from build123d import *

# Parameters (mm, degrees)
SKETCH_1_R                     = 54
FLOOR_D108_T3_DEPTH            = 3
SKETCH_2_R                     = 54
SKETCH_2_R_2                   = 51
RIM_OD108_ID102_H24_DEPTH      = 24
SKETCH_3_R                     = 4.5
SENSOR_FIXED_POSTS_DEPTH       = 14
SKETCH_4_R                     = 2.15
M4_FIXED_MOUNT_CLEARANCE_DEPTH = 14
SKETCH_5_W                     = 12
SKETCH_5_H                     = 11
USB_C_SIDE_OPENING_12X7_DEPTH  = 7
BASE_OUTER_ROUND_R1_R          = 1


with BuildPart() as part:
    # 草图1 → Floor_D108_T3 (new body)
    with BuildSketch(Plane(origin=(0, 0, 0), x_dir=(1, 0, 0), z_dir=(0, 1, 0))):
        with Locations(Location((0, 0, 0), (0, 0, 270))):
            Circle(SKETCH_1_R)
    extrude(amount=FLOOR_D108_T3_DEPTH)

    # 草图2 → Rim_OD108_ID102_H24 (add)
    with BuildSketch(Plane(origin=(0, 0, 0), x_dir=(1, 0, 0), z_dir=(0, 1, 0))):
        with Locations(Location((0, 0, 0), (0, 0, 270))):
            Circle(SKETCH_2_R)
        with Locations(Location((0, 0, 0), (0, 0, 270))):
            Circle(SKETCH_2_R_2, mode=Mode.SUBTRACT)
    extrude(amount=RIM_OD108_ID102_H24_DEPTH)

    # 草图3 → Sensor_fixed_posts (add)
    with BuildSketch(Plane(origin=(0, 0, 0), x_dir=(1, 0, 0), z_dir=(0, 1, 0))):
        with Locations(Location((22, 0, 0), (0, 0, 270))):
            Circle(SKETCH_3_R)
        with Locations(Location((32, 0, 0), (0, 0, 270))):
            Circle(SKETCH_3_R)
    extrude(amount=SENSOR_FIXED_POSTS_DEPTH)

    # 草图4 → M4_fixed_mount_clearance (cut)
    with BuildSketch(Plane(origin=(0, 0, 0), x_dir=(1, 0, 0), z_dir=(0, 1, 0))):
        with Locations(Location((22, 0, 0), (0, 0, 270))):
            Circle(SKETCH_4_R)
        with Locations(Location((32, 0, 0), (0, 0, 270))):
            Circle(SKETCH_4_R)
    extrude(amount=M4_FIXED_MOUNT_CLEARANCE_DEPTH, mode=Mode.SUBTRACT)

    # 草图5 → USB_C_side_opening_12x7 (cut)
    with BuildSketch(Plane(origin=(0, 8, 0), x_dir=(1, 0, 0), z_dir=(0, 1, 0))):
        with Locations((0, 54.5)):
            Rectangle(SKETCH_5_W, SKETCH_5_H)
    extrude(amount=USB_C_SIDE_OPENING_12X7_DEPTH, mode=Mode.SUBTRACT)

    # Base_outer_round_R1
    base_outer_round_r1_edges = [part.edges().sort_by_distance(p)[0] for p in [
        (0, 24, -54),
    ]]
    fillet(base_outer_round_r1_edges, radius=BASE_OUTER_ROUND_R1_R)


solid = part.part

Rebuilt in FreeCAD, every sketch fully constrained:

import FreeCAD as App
import Part
import Sketcher
from FreeCAD import Vector


def edges_at(feature, points):
    """Names of the edges that pass closest to the given points."""
    edges = feature.Shape.Edges
    near = lambda p: min(range(len(edges)), key=lambda i: edges[i].distToShape(Part.Vertex(*p))[0])
    return sorted({f"Edge{near(p) + 1}" for p in points})


def add_polygon(sketch, points):
    """Adds a closed chain of lines whose ends are joined by coincident constraints."""
    first, n = sketch.GeometryCount, len(points)
    for a, b in zip(points, points[1:] + points[:1]):
        sketch.addGeometry(Part.LineSegment(App.Vector(*a, 0), App.Vector(*b, 0)), False)
    for i in range(n):
        sketch.addConstraint(Sketcher.Constraint("Coincident", first + i, 2, first + (i + 1) % n, 1))

doc = App.newDocument("Part")
body = doc.addObject("PartDesign::Body", "Body")

# Sketch on XZ plane
sketch1 = doc.addObject("Sketcher::SketchObject", "Sketch")
body.addObject(sketch1)
sketch1.AttachmentSupport = (doc.XZ_Plane, [""])
sketch1.MapMode = "FlatFace"
sketch1.addGeometry(Part.Circle(Vector(0, 0, 0), Vector(0, 0, 1), 54), False)
sketch1.addConstraint([
    Sketcher.Constraint("Coincident", 0, 3, -1, 1),
    Sketcher.Constraint("Diameter", 0, 108.0),
])
pad1 = doc.addObject("PartDesign::Pad", "Pad")
body.addObject(pad1)
pad1.Profile = sketch1
pad1.Length = 3
pad1.Reversed = True

# Sketch on XZ plane
sketch2 = doc.addObject("Sketcher::SketchObject", "Sketch001")
body.addObject(sketch2)
sketch2.AttachmentSupport = (doc.XZ_Plane, [""])
sketch2.MapMode = "FlatFace"
sketch2.addGeometry([
    Part.Circle(Vector(0, 0, 0), Vector(0, 0, 1), 54),
    Part.Circle(Vector(0, 0, 0), Vector(0, 0, 1), 51),
], False)
sketch2.addConstraint([
    Sketcher.Constraint("Coincident", 0, 3, -1, 1),
    Sketcher.Constraint("Coincident", 1, 3, -1, 1),
    Sketcher.Constraint("Diameter", 0, 108.0),
    Sketcher.Constraint("Diameter", 1, 102.0),
])
pad2 = doc.addObject("PartDesign::Pad", "Pad001")
body.addObject(pad2)
pad2.Profile = sketch2
pad2.Length = 24
pad2.Reversed = True

# Sketch on XZ plane
sketch3 = doc.addObject("Sketcher::SketchObject", "Sketch002")
body.addObject(sketch3)
sketch3.AttachmentSupport = (doc.XZ_Plane, [""])
sketch3.MapMode = "FlatFace"
sketch3.addGeometry([
    Part.Circle(Vector(22, 0, 0), Vector(0, 0, 1), 4.5),
    Part.Circle(Vector(32, 0, 0), Vector(0, 0, 1), 4.5),
], False)
sketch3.addConstraint([
    Sketcher.Constraint("Equal", 0, 1),
    Sketcher.Constraint("PointOnObject", 0, 3, -1),
    Sketcher.Constraint("PointOnObject", 1, 3, -1),
    Sketcher.Constraint("Diameter", 0, 9.0),
    Sketcher.Constraint("DistanceX", -1, 1, 0, 3, 22.0),
    Sketcher.Constraint("DistanceX", -1, 1, 1, 3, 32.0),
])
pad3 = doc.addObject("PartDesign::Pad", "Pad002")
body.addObject(pad3)
pad3.Profile = sketch3
pad3.Length = 14
pad3.Reversed = True

# Sketch on XZ plane
sketch4 = doc.addObject("Sketcher::SketchObject", "Sketch003")
body.addObject(sketch4)
sketch4.AttachmentSupport = (doc.XZ_Plane, [""])
sketch4.MapMode = "FlatFace"
sketch4.addGeometry([
    Part.Circle(Vector(22, 0, 0), Vector(0, 0, 1), 2.1),
    Part.Circle(Vector(32, 0, 0), Vector(0, 0, 1), 2.1),
], False)
sketch4.addConstraint([
    Sketcher.Constraint("Equal", 0, 1),
    Sketcher.Constraint("PointOnObject", 0, 3, -1),
    Sketcher.Constraint("PointOnObject", 1, 3, -1),
    Sketcher.Constraint("Diameter", 0, 4.3),
    Sketcher.Constraint("DistanceX", -1, 1, 0, 3, 22.0),
    Sketcher.Constraint("DistanceX", -1, 1, 1, 3, 32.0),
])
pocket1 = doc.addObject("PartDesign::Pocket", "Pocket")
body.addObject(pocket1)
pocket1.Profile = sketch4
pocket1.Length = 14

# Sketch on XZ plane
sketch5 = doc.addObject("Sketcher::SketchObject", "Sketch004")
body.addObject(sketch5)
sketch5.AttachmentSupport = (doc.XZ_Plane, [""])
sketch5.MapMode = "FlatFace"
sketch5.AttachmentOffset = App.Placement(Vector(0, 0, -8), App.Rotation())
add_polygon(sketch5, [(-6, -60), (-6, -49), (6, -49), (6, -60)])  # lines 0-3
sketch5.addConstraint([
    Sketcher.Constraint("Vertical", 0),
    Sketcher.Constraint("Horizontal", 1),
    Sketcher.Constraint("Vertical", 2),
    Sketcher.Constraint("Horizontal", 3),
    Sketcher.Constraint("DistanceX", 1, 1, 1, 2, 12.0),
    Sketcher.Constraint("DistanceY", 0, 1, 0, 2, 11.0),
    Sketcher.Constraint("DistanceX", 0, 2, -1, 1, 6.0),
    Sketcher.Constraint("DistanceY", 0, 2, -1, 1, 49.0),
])
pocket2 = doc.addObject("PartDesign::Pocket", "Pocket001")
body.addObject(pocket2)
pocket2.Profile = sketch5
pocket2.Length = 7
doc.recompute()

fillet = doc.addObject("PartDesign::Fillet", "Fillet")
body.addObject(fillet)
fillet.Base = (pocket2, edges_at(pocket2, [(0, 24, -54)]))
fillet.Radius = 1

doc.recompute()
